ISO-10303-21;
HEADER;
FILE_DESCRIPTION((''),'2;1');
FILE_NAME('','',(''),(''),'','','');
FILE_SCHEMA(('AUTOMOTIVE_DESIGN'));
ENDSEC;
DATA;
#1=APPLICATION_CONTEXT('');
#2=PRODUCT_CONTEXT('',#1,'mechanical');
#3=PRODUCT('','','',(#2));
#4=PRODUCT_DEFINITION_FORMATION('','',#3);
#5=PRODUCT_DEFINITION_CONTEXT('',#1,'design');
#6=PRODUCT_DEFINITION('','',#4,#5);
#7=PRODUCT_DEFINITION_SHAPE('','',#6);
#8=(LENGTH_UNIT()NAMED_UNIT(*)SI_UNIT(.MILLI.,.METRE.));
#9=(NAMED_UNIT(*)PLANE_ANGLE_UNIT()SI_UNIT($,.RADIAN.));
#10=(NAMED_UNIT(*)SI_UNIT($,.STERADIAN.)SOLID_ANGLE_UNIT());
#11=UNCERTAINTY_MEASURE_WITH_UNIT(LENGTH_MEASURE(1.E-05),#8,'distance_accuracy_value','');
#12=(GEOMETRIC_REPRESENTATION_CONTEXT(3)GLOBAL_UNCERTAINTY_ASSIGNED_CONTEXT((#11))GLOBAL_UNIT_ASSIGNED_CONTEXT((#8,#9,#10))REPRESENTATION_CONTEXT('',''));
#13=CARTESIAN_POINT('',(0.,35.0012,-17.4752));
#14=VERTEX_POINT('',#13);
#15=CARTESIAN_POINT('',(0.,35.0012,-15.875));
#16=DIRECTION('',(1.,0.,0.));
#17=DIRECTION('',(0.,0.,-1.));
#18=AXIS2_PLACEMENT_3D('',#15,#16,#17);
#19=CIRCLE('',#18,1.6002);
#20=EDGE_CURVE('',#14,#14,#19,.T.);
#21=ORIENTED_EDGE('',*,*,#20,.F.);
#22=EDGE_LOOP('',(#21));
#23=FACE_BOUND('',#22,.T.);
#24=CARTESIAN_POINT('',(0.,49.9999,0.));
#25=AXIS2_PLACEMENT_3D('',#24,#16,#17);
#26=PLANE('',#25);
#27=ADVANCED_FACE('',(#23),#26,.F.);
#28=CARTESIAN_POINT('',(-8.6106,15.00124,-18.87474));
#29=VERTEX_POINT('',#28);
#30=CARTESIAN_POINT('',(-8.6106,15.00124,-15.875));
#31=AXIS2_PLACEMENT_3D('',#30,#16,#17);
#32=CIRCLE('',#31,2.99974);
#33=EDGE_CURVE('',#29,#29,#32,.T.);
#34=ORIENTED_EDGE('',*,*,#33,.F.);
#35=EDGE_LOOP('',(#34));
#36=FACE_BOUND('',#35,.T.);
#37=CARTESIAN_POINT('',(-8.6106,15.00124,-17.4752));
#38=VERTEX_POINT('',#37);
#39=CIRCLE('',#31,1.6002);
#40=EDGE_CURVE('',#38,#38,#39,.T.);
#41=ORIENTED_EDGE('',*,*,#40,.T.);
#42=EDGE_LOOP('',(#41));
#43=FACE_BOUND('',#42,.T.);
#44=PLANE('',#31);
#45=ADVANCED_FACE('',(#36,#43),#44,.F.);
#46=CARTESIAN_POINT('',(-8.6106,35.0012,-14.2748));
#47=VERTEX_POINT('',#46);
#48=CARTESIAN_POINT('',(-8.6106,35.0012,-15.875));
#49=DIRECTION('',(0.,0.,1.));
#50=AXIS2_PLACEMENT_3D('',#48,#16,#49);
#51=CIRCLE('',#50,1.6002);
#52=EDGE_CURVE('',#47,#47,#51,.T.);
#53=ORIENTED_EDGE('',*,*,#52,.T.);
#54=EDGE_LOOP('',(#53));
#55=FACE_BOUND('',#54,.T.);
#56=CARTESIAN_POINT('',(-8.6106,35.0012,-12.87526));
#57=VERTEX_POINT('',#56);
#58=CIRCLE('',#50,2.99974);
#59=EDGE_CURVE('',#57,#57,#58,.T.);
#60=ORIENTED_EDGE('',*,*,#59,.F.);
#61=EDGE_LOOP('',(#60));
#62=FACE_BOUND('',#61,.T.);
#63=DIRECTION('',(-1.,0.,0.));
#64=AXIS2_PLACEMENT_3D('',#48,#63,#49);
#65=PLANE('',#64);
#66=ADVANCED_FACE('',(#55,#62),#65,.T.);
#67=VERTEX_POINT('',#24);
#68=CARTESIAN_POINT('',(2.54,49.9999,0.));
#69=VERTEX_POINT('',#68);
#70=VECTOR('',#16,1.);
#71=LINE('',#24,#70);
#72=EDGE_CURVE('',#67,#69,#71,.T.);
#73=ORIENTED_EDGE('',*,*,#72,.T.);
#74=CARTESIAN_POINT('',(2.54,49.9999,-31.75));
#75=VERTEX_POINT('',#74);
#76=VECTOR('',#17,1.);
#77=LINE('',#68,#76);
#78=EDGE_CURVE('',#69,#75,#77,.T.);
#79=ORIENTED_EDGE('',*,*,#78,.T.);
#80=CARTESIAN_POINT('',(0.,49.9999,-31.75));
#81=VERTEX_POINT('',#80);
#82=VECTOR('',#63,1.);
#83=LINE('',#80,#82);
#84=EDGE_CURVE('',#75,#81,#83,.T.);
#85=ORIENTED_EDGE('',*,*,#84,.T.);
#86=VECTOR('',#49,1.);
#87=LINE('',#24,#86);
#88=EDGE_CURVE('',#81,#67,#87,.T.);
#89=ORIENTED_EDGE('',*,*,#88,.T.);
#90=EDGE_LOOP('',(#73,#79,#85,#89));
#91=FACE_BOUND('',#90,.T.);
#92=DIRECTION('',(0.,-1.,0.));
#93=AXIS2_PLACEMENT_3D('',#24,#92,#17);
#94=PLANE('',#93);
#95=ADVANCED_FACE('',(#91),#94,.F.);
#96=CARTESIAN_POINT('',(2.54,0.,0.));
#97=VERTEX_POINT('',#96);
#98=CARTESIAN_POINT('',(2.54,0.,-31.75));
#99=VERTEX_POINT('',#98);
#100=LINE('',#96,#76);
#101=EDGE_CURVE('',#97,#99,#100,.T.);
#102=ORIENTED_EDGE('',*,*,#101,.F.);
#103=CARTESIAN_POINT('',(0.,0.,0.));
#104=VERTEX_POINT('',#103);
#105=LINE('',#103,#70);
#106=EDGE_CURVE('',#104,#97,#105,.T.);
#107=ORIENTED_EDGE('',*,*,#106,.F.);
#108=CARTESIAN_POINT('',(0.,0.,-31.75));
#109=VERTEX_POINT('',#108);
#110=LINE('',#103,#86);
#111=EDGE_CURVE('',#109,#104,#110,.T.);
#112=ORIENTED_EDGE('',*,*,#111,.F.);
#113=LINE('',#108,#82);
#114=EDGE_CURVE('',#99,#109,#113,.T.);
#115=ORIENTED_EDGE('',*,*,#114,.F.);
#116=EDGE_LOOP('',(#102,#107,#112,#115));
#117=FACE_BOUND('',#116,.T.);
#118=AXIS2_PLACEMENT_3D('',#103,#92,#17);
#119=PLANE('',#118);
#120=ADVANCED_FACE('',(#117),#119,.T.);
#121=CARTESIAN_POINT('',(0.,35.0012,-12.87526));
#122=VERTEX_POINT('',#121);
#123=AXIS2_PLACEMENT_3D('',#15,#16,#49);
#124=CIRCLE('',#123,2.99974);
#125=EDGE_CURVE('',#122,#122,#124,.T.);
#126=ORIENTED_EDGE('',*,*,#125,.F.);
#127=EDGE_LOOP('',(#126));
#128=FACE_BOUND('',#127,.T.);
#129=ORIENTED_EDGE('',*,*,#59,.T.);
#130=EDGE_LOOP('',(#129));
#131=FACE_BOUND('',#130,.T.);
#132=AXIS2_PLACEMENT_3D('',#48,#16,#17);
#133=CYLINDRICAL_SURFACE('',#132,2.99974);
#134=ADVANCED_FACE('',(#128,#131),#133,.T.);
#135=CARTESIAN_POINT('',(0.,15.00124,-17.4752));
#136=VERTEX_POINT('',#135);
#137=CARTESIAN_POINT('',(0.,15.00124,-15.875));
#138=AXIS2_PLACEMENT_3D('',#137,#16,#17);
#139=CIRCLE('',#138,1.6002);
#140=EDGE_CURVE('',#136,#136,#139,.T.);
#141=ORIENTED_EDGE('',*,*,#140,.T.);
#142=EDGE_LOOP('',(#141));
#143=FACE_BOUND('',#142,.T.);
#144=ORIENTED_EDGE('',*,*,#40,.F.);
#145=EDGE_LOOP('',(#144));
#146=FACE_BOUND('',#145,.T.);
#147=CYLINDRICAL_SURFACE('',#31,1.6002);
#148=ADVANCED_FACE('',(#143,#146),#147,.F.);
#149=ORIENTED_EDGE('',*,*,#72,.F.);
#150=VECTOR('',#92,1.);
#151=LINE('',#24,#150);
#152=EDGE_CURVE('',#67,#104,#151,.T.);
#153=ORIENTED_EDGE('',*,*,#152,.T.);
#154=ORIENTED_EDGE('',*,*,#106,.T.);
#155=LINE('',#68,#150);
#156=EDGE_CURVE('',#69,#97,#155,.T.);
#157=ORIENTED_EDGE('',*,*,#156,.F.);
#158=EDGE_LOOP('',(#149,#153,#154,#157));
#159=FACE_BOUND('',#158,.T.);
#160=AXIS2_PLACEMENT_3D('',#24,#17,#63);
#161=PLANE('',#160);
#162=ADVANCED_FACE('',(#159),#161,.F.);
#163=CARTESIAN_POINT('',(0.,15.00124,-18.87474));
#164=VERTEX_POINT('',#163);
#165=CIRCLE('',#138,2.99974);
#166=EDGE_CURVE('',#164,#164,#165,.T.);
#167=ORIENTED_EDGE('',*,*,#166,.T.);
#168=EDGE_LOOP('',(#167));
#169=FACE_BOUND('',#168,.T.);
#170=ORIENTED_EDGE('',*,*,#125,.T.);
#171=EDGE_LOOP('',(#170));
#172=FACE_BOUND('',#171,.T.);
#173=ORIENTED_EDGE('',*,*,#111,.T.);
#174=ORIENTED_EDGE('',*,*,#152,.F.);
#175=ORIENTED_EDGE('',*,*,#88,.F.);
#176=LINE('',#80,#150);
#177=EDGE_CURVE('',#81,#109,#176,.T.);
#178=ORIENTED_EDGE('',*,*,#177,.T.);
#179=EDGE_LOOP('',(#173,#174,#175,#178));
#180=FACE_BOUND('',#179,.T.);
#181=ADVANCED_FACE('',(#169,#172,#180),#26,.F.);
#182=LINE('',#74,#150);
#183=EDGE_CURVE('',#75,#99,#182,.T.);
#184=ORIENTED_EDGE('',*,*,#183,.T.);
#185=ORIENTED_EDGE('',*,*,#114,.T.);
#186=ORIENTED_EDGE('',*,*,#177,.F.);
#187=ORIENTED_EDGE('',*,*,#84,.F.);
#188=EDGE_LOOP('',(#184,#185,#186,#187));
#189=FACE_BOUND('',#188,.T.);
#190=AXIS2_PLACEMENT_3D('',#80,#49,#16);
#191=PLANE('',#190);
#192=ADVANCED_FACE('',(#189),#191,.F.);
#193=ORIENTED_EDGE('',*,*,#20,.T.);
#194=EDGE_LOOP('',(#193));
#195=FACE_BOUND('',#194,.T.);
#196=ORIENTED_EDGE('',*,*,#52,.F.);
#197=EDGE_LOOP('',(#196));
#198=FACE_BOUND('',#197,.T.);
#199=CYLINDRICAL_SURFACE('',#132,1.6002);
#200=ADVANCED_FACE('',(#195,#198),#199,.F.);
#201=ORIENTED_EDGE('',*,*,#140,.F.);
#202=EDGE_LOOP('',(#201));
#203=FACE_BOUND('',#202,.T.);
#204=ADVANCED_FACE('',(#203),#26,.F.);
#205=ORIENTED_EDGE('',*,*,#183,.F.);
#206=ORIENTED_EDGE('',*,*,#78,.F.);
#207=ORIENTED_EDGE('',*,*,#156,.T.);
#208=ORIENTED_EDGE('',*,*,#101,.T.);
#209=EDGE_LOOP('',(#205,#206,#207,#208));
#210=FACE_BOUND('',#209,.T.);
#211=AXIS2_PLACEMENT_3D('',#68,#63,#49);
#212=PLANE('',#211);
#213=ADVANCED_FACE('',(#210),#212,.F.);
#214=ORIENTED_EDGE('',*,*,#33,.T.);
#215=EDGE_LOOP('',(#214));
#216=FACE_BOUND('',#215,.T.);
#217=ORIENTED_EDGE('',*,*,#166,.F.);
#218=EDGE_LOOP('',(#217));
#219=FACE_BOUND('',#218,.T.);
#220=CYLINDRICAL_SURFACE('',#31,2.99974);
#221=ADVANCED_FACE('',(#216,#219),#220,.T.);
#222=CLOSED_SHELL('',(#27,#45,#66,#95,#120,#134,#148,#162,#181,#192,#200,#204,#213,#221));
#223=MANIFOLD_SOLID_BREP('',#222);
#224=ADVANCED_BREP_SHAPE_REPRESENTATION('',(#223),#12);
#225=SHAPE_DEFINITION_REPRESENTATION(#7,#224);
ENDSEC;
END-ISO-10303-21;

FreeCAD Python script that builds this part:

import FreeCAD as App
import Part
import Sketcher
from FreeCAD import Vector
Q = App.Units.Quantity


def add_polygon(sketch, points):
    """Adds a closed chain of lines whose ends are joined by coincident constraints."""
    first, n = sketch.GeometryCount, len(points)
    for a, b in zip(points, points[1:] + points[:1]):
        sketch.addGeometry(Part.LineSegment(App.Vector(*a, 0), App.Vector(*b, 0)), False)
    for i in range(n):
        sketch.addConstraint(Sketcher.Constraint("Coincident", first + i, 2, first + (i + 1) % n, 1))

doc = App.newDocument("Part")
body = doc.addObject("PartDesign::Body", "Body")

sketch1 = doc.addObject("Sketcher::SketchObject", "Sketch")
body.addObject(sketch1)
sketch1.AttachmentSupport = (doc.XZ_Plane, [""])
sketch1.MapMode = "FlatFace"
add_polygon(sketch1, [(0, -31.8), (0, 0), (2.5, 0), (2.5, -31.8)])
sketch1.addConstraint(Sketcher.Constraint("Vertical", 0))
sketch1.addConstraint(Sketcher.Constraint("Horizontal", 1))
sketch1.addConstraint(Sketcher.Constraint("Vertical", 2))
sketch1.addConstraint(Sketcher.Constraint("Horizontal", 3))
sketch1.addConstraint(Sketcher.Constraint("Coincident", 0, 2, -1, 1))
sketch1.addConstraint(Sketcher.Constraint("DistanceX", 1, 1, 1, 2, Q("0.1 in")))
sketch1.addConstraint(Sketcher.Constraint("DistanceY", 0, 1, 0, 2, Q("1.25 in")))
pad1 = doc.addObject("PartDesign::Pad", "Pad")
body.addObject(pad1)
pad1.Profile = sketch1
pad1.Length = Q("1.9685 in")
pad1.Reversed = True

sketch2 = doc.addObject("Sketcher::SketchObject", "Sketch001")
body.addObject(sketch2)
sketch2.AttachmentSupport = (doc.YZ_Plane, [""])
sketch2.MapMode = "FlatFace"
sketch2.addGeometry(Part.Circle(Vector(15, -15.9, 0), Vector(0, 0, 1), 3), False)
sketch2.addGeometry(Part.Circle(Vector(15, -15.9, 0), Vector(0, 0, 1), 1.6), False)
sketch2.addGeometry(Part.Circle(Vector(35, -15.9, 0), Vector(0, 0, 1), 3), False)
sketch2.addGeometry(Part.Circle(Vector(35, -15.9, 0), Vector(0, 0, 1), 1.6), False)
sketch2.addConstraint(Sketcher.Constraint("Coincident", 1, 3, 0, 3))
sketch2.addConstraint(Sketcher.Constraint("Coincident", 3, 3, 2, 3))
sketch2.addConstraint(Sketcher.Constraint("Equal", 0, 2))
sketch2.addConstraint(Sketcher.Constraint("Equal", 1, 3))
sketch2.addConstraint(Sketcher.Constraint("Horizontal", 1, 3, 2, 3))
sketch2.addConstraint(Sketcher.Constraint("Diameter", 1, Q("0.126 in")))
sketch2.addConstraint(Sketcher.Constraint("Diameter", 0, Q("0.2362 in")))
sketch2.addConstraint(Sketcher.Constraint("DistanceY", 0, 3, -1, 1, Q("0.625 in")))
sketch2.addConstraint(Sketcher.Constraint("DistanceX", -1, 1, 2, 3, Q("1.378 in")))
sketch2.addConstraint(Sketcher.Constraint("DistanceX", -1, 1, 0, 3, Q("0.5906 in")))
pad2 = doc.addObject("PartDesign::Pad", "Pad001")
body.addObject(pad2)
pad2.Profile = sketch2
pad2.Length = Q("0.339 in")
pad2.Reversed = True

doc.recompute()
